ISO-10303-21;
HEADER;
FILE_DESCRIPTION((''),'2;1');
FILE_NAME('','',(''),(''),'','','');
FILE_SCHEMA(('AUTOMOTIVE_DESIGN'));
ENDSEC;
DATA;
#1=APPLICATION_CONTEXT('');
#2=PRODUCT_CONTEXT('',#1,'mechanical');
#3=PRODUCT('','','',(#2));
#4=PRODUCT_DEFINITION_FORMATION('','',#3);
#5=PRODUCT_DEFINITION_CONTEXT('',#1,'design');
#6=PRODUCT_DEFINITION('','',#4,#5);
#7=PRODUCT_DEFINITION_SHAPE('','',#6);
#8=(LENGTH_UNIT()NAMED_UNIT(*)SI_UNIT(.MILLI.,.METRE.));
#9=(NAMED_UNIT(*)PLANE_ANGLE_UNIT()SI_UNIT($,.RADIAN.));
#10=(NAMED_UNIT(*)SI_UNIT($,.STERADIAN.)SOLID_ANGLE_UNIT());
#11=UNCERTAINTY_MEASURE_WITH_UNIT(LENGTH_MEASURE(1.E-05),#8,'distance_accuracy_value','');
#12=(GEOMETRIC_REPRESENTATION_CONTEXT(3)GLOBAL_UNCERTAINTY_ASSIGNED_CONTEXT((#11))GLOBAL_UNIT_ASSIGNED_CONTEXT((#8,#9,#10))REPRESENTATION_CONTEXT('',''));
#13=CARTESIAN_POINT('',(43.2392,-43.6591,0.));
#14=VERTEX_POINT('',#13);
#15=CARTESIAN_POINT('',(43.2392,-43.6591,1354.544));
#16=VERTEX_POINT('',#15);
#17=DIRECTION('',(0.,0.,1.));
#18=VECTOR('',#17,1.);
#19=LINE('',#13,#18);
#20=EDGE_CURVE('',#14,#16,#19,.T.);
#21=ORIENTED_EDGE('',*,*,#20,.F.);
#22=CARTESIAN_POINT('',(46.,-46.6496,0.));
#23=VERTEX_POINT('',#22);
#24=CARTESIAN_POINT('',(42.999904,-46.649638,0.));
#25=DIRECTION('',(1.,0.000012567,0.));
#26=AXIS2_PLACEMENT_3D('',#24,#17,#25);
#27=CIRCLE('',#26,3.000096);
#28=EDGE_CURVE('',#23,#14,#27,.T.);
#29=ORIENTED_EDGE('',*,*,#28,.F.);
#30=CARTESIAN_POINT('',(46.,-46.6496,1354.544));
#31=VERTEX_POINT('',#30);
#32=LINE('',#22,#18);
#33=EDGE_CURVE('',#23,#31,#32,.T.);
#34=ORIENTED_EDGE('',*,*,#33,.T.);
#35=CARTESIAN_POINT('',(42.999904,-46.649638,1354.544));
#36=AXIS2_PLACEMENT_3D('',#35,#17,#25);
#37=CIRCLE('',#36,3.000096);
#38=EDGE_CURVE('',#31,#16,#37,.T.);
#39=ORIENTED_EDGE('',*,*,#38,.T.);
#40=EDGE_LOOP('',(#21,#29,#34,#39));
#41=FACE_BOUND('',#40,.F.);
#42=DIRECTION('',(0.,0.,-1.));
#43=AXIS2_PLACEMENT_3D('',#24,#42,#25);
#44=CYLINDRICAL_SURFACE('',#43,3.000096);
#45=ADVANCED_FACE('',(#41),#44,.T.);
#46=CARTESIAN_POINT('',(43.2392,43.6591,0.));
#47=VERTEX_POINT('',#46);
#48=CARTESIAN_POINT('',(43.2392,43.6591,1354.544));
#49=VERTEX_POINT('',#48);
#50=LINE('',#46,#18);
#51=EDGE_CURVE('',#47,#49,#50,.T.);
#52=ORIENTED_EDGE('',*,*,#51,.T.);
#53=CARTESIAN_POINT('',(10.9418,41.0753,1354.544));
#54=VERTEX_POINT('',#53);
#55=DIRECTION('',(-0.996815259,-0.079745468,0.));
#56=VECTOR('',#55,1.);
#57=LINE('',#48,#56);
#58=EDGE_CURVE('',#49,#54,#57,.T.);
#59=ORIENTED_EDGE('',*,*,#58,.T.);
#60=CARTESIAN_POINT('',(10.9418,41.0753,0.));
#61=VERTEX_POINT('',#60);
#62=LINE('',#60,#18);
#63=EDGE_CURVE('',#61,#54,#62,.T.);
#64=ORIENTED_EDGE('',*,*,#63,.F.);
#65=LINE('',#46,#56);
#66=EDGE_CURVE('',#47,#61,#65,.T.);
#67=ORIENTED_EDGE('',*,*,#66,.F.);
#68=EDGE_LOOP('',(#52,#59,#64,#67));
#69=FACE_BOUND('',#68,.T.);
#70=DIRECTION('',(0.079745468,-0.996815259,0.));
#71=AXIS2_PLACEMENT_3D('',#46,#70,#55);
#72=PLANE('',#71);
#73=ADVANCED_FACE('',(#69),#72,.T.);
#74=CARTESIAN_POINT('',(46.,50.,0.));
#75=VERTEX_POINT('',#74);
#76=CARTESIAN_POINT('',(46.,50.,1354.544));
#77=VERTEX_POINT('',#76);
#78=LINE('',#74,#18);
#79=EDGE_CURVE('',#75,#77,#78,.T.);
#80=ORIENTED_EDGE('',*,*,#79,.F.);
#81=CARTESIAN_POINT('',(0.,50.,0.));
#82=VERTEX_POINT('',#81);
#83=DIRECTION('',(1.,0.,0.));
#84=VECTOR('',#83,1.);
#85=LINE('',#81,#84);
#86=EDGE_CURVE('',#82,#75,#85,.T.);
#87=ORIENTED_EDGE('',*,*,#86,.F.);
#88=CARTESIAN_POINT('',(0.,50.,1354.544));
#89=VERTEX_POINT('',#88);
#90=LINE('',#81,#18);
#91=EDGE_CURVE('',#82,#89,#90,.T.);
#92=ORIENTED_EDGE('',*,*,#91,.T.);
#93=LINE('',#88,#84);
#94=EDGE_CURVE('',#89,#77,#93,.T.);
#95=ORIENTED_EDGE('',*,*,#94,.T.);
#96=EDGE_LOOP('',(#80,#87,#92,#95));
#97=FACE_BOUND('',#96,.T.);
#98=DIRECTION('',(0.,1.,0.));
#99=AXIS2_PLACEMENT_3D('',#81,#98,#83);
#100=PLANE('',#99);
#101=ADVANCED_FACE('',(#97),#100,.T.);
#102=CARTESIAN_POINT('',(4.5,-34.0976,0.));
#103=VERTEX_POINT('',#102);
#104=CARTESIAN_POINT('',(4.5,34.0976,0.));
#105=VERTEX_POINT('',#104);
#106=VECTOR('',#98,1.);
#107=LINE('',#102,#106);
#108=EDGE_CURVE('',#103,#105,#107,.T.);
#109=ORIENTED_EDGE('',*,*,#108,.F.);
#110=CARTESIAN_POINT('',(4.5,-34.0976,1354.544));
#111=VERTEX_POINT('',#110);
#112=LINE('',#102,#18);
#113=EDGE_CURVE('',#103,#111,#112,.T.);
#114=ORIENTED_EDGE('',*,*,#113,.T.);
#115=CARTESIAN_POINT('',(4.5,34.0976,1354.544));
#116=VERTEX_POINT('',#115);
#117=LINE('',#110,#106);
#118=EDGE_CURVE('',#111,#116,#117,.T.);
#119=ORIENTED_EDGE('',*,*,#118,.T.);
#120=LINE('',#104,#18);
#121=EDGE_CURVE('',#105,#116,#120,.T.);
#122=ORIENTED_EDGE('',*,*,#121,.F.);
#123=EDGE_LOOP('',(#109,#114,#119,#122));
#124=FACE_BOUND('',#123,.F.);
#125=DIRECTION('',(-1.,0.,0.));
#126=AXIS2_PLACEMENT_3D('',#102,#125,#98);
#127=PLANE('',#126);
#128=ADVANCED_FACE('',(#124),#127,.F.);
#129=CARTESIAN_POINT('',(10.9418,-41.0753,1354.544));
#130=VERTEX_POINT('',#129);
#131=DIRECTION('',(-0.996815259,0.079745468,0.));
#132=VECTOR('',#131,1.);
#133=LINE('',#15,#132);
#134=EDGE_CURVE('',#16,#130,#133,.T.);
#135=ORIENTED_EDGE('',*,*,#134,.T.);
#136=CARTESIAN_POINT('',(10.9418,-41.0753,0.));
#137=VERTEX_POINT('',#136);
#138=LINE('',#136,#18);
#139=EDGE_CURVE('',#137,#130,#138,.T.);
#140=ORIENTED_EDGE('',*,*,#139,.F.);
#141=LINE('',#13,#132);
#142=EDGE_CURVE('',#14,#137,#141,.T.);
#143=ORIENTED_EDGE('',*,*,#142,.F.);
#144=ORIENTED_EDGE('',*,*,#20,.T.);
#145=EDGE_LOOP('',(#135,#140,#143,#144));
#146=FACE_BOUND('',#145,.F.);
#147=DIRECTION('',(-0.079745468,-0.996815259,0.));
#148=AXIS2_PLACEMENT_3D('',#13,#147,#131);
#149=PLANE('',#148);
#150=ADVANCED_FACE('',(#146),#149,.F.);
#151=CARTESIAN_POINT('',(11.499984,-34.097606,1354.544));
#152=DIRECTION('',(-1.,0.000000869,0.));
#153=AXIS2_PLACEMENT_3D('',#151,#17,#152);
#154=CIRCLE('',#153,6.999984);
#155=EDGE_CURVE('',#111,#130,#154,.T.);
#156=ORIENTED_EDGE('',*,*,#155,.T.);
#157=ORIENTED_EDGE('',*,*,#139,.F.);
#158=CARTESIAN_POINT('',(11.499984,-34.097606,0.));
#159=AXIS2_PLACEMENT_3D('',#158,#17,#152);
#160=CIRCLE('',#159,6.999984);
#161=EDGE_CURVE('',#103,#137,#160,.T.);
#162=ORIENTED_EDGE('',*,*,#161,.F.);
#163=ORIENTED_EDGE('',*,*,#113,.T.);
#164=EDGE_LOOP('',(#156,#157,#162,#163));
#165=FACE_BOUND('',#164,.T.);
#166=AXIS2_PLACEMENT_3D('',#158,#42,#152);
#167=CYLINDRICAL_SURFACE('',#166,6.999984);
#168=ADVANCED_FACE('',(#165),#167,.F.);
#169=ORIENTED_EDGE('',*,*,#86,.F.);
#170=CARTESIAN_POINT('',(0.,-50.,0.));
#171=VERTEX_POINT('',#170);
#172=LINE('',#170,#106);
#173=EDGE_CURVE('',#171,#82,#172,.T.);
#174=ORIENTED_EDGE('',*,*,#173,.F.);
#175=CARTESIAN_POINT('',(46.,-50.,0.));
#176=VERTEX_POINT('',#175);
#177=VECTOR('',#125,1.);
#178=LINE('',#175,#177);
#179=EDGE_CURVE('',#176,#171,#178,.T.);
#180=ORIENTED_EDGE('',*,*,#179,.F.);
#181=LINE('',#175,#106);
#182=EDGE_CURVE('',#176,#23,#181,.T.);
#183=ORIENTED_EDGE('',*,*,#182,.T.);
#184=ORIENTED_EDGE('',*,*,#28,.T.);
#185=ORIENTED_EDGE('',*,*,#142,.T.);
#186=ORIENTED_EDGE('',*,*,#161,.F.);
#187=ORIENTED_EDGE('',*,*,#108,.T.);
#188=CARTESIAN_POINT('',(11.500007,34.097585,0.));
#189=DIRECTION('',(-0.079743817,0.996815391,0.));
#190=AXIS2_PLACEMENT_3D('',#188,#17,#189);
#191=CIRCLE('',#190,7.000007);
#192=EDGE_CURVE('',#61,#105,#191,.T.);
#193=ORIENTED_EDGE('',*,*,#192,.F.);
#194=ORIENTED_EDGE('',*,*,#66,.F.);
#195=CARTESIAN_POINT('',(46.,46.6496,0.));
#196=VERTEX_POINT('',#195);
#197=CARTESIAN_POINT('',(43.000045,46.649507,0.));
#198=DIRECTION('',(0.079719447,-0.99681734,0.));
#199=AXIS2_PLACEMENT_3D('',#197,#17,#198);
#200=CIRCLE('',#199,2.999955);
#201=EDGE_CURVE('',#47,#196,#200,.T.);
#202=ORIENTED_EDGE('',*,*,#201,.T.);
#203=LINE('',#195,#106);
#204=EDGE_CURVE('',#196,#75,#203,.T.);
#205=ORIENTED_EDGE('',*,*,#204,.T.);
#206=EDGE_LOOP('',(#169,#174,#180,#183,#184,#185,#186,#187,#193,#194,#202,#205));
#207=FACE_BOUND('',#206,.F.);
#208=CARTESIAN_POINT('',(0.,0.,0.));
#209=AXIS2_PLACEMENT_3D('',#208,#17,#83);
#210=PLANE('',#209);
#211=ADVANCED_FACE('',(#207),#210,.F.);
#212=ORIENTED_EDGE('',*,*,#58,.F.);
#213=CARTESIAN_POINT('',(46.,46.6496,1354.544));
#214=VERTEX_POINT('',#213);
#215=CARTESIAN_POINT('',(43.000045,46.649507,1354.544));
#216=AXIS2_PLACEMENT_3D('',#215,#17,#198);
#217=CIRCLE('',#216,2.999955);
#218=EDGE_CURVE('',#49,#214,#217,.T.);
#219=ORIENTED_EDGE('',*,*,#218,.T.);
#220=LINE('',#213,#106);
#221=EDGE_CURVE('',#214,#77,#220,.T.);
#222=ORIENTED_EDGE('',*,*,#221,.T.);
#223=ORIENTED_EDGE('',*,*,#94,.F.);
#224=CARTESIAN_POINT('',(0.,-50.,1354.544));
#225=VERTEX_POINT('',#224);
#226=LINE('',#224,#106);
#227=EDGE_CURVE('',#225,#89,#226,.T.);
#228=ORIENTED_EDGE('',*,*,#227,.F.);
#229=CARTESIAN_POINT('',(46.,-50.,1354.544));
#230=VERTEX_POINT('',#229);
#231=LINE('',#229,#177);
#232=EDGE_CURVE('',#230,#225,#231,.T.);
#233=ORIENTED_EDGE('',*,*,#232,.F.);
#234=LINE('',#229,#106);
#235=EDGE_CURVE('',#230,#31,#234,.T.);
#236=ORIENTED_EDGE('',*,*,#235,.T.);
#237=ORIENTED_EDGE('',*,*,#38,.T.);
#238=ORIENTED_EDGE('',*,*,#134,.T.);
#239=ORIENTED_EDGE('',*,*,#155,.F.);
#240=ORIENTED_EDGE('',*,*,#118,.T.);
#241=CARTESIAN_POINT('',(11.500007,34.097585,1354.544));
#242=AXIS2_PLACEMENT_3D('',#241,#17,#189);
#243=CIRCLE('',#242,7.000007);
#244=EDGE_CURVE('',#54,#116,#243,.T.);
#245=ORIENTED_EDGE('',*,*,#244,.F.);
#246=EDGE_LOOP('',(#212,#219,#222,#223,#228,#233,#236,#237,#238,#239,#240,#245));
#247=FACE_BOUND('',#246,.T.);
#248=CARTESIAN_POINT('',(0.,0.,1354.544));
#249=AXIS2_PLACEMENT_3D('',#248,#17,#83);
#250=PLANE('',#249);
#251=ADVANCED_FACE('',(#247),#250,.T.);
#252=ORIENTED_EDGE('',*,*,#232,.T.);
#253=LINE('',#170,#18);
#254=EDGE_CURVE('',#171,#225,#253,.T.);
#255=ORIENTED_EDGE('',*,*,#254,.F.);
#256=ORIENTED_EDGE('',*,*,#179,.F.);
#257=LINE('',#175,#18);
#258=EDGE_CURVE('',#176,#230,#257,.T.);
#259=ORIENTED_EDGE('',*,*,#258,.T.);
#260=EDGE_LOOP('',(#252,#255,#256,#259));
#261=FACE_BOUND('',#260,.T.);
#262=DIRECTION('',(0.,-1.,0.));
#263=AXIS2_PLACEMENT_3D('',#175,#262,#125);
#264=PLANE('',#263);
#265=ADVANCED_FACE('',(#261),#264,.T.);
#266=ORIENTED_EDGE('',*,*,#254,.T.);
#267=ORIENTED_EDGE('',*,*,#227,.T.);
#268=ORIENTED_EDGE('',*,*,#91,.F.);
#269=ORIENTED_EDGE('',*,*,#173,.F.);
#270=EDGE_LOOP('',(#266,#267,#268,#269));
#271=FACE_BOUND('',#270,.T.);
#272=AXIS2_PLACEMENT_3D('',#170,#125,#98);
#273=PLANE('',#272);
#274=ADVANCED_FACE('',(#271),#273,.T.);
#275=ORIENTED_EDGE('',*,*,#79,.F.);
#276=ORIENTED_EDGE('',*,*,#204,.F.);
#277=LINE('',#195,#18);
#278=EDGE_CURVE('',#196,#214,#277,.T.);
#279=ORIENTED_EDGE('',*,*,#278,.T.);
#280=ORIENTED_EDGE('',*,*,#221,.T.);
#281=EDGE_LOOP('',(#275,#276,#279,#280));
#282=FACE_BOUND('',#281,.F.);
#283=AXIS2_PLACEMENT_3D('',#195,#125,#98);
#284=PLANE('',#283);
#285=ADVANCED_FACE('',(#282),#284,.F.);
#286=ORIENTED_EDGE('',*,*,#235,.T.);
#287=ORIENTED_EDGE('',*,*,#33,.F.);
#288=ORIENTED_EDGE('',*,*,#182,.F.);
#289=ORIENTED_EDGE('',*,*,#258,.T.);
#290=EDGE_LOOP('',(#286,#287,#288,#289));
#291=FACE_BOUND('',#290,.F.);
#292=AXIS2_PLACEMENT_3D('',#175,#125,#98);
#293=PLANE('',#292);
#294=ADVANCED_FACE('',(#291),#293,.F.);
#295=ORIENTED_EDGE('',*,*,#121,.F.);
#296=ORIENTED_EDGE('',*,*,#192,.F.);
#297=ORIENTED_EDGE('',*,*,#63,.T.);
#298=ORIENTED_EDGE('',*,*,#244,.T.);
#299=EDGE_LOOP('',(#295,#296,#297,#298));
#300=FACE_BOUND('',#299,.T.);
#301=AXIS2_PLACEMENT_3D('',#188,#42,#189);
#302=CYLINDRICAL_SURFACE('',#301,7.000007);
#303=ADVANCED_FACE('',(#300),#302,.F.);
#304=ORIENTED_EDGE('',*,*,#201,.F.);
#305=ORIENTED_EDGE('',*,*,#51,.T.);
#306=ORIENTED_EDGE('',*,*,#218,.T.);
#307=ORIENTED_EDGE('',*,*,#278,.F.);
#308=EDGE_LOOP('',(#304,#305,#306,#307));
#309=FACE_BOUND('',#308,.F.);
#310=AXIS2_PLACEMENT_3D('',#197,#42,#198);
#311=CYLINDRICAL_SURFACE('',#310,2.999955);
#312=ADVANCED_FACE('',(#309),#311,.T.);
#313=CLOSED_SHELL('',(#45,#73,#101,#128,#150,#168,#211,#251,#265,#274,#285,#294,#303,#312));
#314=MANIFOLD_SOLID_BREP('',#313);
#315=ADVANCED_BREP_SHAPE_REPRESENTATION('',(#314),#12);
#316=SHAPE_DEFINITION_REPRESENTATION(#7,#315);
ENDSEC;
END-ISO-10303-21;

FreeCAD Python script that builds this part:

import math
import FreeCAD as App
import Part
import Sketcher

V = App.Vector

doc = App.newDocument("Part")
body = doc.addObject("PartDesign::Body", "Body")

# Sketch on XY plane
sketch1 = doc.addObject("Sketcher::SketchObject", "Sketch")
body.addObject(sketch1)
sketch1.AttachmentSupport = (doc.XY_Plane, [""])
sketch1.MapMode = "FlatFace"
sketch1.addGeometry([
    Part.LineSegment(V(0, -50, 0), V(46, -50, 0)),  # 0
    Part.LineSegment(V(46, -50, 0), V(46, -46.6, 0)),  # 1
    Part.ArcOfCircle(Part.Circle(V(43, -46.6, 0), V(0, 0, 1), 3), math.radians(0), math.radians(85)),  # 2
    Part.LineSegment(V(43.2, -43.7, 0), V(10.9, -41.1, 0)),  # 3
    Part.ArcOfCircle(Part.Circle(V(11.5, -34.1, 0), V(0, 0, 1), 7), math.radians(180), math.radians(265)),  # 4
    Part.LineSegment(V(4.5, -34.1, 0), V(4.5, 34.1, 0)),  # 5
    Part.ArcOfCircle(Part.Circle(V(11.5, 34.1, 0), V(0, 0, 1), 7), math.radians(95), math.radians(180)),  # 6
    Part.LineSegment(V(10.9, 41.1, 0), V(43.2, 43.7, 0)),  # 7
    Part.ArcOfCircle(Part.Circle(V(43, 46.6, 0), V(0, 0, 1), 3), math.radians(-85), math.radians(0)),  # 8
    Part.LineSegment(V(46, 46.6, 0), V(46, 50, 0)),  # 9
    Part.LineSegment(V(46, 50, 0), V(0, 50, 0)),  # 10
    Part.LineSegment(V(0, 50, 0), V(0, -50, 0)),  # 11
], False)
sketch1.addConstraint([
    Sketcher.Constraint("Coincident", 0, 2, 1, 1),
    Sketcher.Constraint("Tangent", 1, 2, 2, 1),
    Sketcher.Constraint("Tangent", 2, 2, 3, 1),
    Sketcher.Constraint("Tangent", 3, 2, 4, 2),
    Sketcher.Constraint("Tangent", 4, 1, 5, 1),
    Sketcher.Constraint("Tangent", 5, 2, 6, 2),
    Sketcher.Constraint("Tangent", 6, 1, 7, 1),
    Sketcher.Constraint("Tangent", 7, 2, 8, 1),
    Sketcher.Constraint("Tangent", 8, 2, 9, 1),
    Sketcher.Constraint("Coincident", 9, 2, 10, 1),
    Sketcher.Constraint("Coincident", 10, 2, 11, 1),
    Sketcher.Constraint("Coincident", 11, 2, 0, 1),
    Sketcher.Constraint("Horizontal", 0),
    Sketcher.Constraint("Vertical", 1),
    Sketcher.Constraint("Vertical", 5),
    Sketcher.Constraint("Vertical", 9),
    Sketcher.Constraint("Horizontal", 10),
    Sketcher.Constraint("Vertical", 11),
    Sketcher.Constraint("Equal", 4, 6),
    Sketcher.Constraint("Equal", 2, 8),
    Sketcher.Constraint("Symmetric", 10, 2, 11, 2, -1, 1),
    Sketcher.Constraint("Symmetric", 2, 3, 8, 3, -1),
    Sketcher.Constraint("Vertical", 3, 2, 6, 1),
    Sketcher.Constraint("Radius", 2, 3.0),
    Sketcher.Constraint("Radius", 4, 7.0),
    Sketcher.Constraint("DistanceX", 0, 1, 0, 2, 46.0),
    Sketcher.Constraint("DistanceY", 11, 2, 11, 1, 100.0),
    Sketcher.Constraint("DistanceX", -1, 1, 4, 1, 4.5),
    Sketcher.Constraint("DistanceY", 1, 1, 1, 2, 3.3504),
    Sketcher.Constraint("DistanceY", 5, 1, 5, 2, 68.1952),
])
pad1 = doc.addObject("PartDesign::Pad", "Pad")
body.addObject(pad1)
pad1.Profile = sketch1
pad1.Length = 1354.544

doc.recompute()
